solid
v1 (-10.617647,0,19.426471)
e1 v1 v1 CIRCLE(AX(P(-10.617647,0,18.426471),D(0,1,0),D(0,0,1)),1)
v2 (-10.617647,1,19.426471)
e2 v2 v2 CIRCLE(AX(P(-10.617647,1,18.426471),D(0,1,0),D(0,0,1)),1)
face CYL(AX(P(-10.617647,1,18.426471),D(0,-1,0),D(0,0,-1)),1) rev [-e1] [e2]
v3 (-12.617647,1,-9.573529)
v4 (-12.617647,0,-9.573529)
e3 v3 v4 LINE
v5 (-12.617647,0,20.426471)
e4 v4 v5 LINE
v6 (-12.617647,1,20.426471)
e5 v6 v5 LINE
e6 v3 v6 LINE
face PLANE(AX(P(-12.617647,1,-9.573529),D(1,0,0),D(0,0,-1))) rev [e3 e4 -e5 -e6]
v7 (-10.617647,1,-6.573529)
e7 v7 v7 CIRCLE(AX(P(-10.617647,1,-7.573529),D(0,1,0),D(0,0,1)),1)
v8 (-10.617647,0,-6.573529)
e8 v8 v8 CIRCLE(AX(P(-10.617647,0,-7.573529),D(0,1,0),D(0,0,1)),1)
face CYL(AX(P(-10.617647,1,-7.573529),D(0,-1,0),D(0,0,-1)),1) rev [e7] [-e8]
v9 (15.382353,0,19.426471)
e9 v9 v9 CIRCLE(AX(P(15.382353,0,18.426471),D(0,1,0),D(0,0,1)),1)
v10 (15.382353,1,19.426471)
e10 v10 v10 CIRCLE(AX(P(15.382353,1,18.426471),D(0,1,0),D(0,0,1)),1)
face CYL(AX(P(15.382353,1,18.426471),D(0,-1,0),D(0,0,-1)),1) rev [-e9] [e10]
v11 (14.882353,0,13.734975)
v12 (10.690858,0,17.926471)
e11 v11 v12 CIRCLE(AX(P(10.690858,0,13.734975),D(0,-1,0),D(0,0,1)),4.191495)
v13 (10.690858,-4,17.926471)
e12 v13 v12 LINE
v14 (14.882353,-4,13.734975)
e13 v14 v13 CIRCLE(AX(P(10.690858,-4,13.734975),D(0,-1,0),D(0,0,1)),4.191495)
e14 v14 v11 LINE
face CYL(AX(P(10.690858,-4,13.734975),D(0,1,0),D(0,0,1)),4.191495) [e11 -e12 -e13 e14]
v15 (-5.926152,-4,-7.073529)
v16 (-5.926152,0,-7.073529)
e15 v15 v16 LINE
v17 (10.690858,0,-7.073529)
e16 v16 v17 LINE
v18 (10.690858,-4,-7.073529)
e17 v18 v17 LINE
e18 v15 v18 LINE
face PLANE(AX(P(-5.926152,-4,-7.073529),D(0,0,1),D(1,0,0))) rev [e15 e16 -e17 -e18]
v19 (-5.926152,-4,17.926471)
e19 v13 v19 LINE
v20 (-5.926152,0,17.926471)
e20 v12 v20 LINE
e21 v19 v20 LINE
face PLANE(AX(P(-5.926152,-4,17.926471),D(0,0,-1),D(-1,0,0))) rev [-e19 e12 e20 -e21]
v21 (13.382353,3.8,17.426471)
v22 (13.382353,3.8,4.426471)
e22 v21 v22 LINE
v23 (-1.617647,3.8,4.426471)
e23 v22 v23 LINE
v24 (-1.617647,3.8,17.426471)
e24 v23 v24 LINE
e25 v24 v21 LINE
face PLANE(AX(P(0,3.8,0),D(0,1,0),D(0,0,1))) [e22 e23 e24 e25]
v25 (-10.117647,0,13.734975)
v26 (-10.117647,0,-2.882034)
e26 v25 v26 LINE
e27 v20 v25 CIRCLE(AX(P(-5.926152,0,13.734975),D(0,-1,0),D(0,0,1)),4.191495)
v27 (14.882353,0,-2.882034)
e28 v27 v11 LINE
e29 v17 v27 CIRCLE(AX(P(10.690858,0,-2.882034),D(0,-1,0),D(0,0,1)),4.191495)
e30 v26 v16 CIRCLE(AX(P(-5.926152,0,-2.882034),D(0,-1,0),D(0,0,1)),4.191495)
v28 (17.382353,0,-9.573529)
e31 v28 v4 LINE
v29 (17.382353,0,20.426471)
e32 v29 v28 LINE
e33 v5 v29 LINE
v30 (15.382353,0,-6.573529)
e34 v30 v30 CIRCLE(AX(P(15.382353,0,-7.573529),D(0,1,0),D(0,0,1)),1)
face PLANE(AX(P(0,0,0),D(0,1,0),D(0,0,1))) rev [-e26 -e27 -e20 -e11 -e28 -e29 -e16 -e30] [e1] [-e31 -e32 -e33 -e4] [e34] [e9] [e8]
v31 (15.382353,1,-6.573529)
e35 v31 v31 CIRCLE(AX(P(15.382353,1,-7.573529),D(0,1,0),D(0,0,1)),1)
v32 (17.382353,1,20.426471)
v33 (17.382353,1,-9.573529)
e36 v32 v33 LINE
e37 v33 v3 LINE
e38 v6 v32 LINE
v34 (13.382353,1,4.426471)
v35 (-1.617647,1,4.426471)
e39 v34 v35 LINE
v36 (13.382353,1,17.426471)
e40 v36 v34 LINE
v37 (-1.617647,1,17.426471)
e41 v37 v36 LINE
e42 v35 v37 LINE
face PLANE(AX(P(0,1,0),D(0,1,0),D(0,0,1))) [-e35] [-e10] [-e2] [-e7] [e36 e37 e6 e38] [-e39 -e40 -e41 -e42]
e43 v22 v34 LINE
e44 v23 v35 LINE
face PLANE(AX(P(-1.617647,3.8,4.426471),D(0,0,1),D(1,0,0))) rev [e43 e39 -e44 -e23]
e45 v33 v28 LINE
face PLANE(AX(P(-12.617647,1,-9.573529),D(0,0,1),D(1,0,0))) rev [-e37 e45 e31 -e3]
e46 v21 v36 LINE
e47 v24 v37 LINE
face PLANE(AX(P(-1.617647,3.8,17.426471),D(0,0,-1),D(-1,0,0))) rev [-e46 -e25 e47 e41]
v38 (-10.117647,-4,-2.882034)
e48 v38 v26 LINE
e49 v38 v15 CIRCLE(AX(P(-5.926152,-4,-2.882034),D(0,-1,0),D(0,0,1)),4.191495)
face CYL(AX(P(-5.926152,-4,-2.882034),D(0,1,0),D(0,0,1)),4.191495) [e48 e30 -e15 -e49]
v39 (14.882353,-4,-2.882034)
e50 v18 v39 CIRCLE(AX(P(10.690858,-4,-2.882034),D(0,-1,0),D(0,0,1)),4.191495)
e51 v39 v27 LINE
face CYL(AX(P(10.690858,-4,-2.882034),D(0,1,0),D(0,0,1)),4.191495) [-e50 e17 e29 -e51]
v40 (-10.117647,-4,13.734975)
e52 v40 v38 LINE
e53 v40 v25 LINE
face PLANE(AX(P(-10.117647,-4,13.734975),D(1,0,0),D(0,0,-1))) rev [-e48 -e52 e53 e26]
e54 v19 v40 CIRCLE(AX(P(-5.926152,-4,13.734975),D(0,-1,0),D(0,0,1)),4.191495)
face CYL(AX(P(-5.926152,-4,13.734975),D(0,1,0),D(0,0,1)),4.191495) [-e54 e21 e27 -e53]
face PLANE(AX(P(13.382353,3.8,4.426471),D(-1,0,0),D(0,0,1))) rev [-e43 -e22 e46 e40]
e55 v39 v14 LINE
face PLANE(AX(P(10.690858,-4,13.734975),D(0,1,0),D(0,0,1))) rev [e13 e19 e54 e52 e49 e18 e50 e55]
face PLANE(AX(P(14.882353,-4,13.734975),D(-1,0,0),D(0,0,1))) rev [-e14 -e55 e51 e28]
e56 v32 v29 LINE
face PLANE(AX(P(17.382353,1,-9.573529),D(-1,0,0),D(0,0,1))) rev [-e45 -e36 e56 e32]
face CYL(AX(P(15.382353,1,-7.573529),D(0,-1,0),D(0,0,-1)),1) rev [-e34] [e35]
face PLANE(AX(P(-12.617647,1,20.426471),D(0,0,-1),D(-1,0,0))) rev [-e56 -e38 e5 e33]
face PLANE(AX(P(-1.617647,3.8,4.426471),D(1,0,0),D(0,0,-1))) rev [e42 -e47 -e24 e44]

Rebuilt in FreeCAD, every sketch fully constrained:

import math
import FreeCAD as App
import Part
import Sketcher
Q = App.Units.Quantity

doc = App.newDocument("Part")
body = doc.addObject("PartDesign::Body", "Body")

sketch1 = doc.addObject("Sketcher::SketchObject", "Sketch")
body.addObject(sketch1)
sketch1.AttachmentSupport = (doc.XZ_Plane, [""])
sketch1.MapMode = "FlatFace"
sketch1.addGeometry([
    Part.LineSegment(App.Vector(-12.6, -9.6, 0), App.Vector(-12.6, 20.4, 0)),
    Part.LineSegment(App.Vector(-12.6, 20.4, 0), App.Vector(17.4, 20.4, 0)),
    Part.LineSegment(App.Vector(17.4, 20.4, 0), App.Vector(17.4, -9.6, 0)),
    Part.LineSegment(App.Vector(17.4, -9.6, 0), App.Vector(-12.6, -9.6, 0)),
    Part.Circle(App.Vector(-10.6, 18.4, 0), App.Vector(0, 0, 1), 1),
    Part.Circle(App.Vector(15.4, 18.4, 0), App.Vector(0, 0, 1), 1),
    Part.Circle(App.Vector(-10.6, -7.6, 0), App.Vector(0, 0, 1), 1),
    Part.Circle(App.Vector(15.4, -7.6, 0), App.Vector(0, 0, 1), 1),
], False)
sketch1.addConstraint([
    Sketcher.Constraint("Coincident", 0, 2, 1, 1),
    Sketcher.Constraint("Coincident", 1, 2, 2, 1),
    Sketcher.Constraint("Coincident", 2, 2, 3, 1),
    Sketcher.Constraint("Coincident", 3, 2, 0, 1),
    Sketcher.Constraint("Vertical", 0),
    Sketcher.Constraint("Horizontal", 1),
    Sketcher.Constraint("Vertical", 2),
    Sketcher.Constraint("Horizontal", 3),
    Sketcher.Constraint("Equal", 4, 5),
    Sketcher.Constraint("Equal", 5, 6),
    Sketcher.Constraint("Equal", 6, 7),
    Sketcher.Constraint("Horizontal", 4, 3, 5, 3),
    Sketcher.Constraint("Horizontal", 6, 3, 7, 3),
    Sketcher.Constraint("Vertical", 4, 3, 6, 3),
    Sketcher.Constraint("Vertical", 5, 3, 7, 3),
    Sketcher.Constraint("Equal", 3, 0),
    Sketcher.Constraint("Diameter", 4, Q("2 mm")),
    Sketcher.Constraint("DistanceX", 1, 1, 1, 2, Q("30 mm")),
    Sketcher.Constraint("DistanceX", 4, 3, 5, 3, Q("26 mm")),
    Sketcher.Constraint("DistanceY", 6, 3, 4, 3, Q("26 mm")),
    Sketcher.Constraint("DistanceX", 0, 2, 4, 3, Q("2 mm")),
    Sketcher.Constraint("DistanceY", 4, 3, 0, 2, Q("2 mm")),
    Sketcher.Constraint("DistanceY", -1, 1, 4, 3, Q("18.426471 mm")),
    Sketcher.Constraint("DistanceX", 4, 3, -1, 1, Q("10.617647 mm")),
])
pad1 = doc.addObject("PartDesign::Pad", "Pad")
body.addObject(pad1)
pad1.Profile = sketch1
pad1.Length = 1
pad1.Reversed = True

sketch2 = doc.addObject("Sketcher::SketchObject", "Sketch001")
body.addObject(sketch2)
sketch2.AttachmentSupport = (doc.XZ_Plane, [""])
sketch2.MapMode = "FlatFace"
sketch2.AttachmentOffset = App.Placement(App.Vector(0, 0, -1), App.Rotation())
sketch2.addGeometry([
    Part.LineSegment(App.Vector(-2, 4, 0), App.Vector(-2, 17, 0)),
    Part.LineSegment(App.Vector(-2, 17, 0), App.Vector(13, 17, 0)),
    Part.LineSegment(App.Vector(13, 17, 0), App.Vector(13, 4, 0)),
    Part.LineSegment(App.Vector(13, 4, 0), App.Vector(-2, 4, 0)),
], False)
sketch2.addConstraint([
    Sketcher.Constraint("Coincident", 0, 2, 1, 1),
    Sketcher.Constraint("Coincident", 1, 2, 2, 1),
    Sketcher.Constraint("Coincident", 2, 2, 3, 1),
    Sketcher.Constraint("Coincident", 3, 2, 0, 1),
    Sketcher.Constraint("Vertical", 0),
    Sketcher.Constraint("Horizontal", 1),
    Sketcher.Constraint("Vertical", 2),
    Sketcher.Constraint("Horizontal", 3),
    Sketcher.Constraint("DistanceX", 1, 1, 1, 2, Q("15 mm")),
    Sketcher.Constraint("DistanceY", 0, 1, 0, 2, Q("13 mm")),
    Sketcher.Constraint("DistanceY", -1, 1, 0, 2, Q("17.426471 mm")),
    Sketcher.Constraint("DistanceX", 0, 2, -1, 1, Q("1.617647 mm")),
])
pad2 = doc.addObject("PartDesign::Pad", "Pad001")
body.addObject(pad2)
pad2.Profile = sketch2
pad2.Length = 2.8
pad2.Reversed = True

sketch3 = doc.addObject("Sketcher::SketchObject", "Sketch002")
body.addObject(sketch3)
sketch3.AttachmentSupport = (doc.XZ_Plane, [""])
sketch3.MapMode = "FlatFace"
sketch3.addGeometry([
    Part.LineSegment(App.Vector(10.7, 17.9, 0), App.Vector(-5.9, 17.9, 0)),
    Part.ArcOfCircle(Part.Circle(App.Vector(-5.9, 13.7, 0), App.Vector(0, 0, 1), 4.2), math.radians(90), math.radians(180)),
    Part.LineSegment(App.Vector(-10.1, 13.7, 0), App.Vector(-10.1, -2.9, 0)),
    Part.ArcOfCircle(Part.Circle(App.Vector(-5.9, -2.9, 0), App.Vector(0, 0, 1), 4.2), math.radians(180), math.radians(270)),
    Part.LineSegment(App.Vector(-5.9, -7.1, 0), App.Vector(10.7, -7.1, 0)),
    Part.ArcOfCircle(Part.Circle(App.Vector(10.7, -2.9, 0), App.Vector(0, 0, 1), 4.2), math.radians(-90), math.radians(0)),
    Part.LineSegment(App.Vector(14.9, -2.9, 0), App.Vector(14.9, 13.7, 0)),
    Part.ArcOfCircle(Part.Circle(App.Vector(10.7, 13.7, 0), App.Vector(0, 0, 1), 4.2), math.radians(0), math.radians(90)),
], False)
sketch3.addConstraint([
    Sketcher.Constraint("Tangent", 0, 2, 1, 1),
    Sketcher.Constraint("Tangent", 1, 2, 2, 1),
    Sketcher.Constraint("Tangent", 2, 2, 3, 1),
    Sketcher.Constraint("Tangent", 3, 2, 4, 1),
    Sketcher.Constraint("Tangent", 4, 2, 5, 1),
    Sketcher.Constraint("Tangent", 5, 2, 6, 1),
    Sketcher.Constraint("Tangent", 6, 2, 7, 1),
    Sketcher.Constraint("Tangent", 7, 2, 0, 1),
    Sketcher.Constraint("Horizontal", 0),
    Sketcher.Constraint("Vertical", 2),
    Sketcher.Constraint("Horizontal", 4),
    Sketcher.Constraint("Vertical", 6),
    Sketcher.Constraint("Equal", 1, 3),
    Sketcher.Constraint("Equal", 3, 5),
    Sketcher.Constraint("Equal", 5, 7),
    Sketcher.Constraint("Equal", 4, 2),
    Sketcher.Constraint("Radius", 1, Q("4.191495 mm")),
    Sketcher.Constraint("DistanceX", 0, 2, 0, 1, Q("16.617009 mm")),
    Sketcher.Constraint("DistanceX", 1, 3, -1, 1, Q("5.926152 mm")),
    Sketcher.Constraint("DistanceY", -1, 1, 0, 2, Q("17.926471 mm")),
])
pad3 = doc.addObject("PartDesign::Pad", "Pad002")
body.addObject(pad3)
pad3.Profile = sketch3
pad3.Length = 4

doc.recompute()
